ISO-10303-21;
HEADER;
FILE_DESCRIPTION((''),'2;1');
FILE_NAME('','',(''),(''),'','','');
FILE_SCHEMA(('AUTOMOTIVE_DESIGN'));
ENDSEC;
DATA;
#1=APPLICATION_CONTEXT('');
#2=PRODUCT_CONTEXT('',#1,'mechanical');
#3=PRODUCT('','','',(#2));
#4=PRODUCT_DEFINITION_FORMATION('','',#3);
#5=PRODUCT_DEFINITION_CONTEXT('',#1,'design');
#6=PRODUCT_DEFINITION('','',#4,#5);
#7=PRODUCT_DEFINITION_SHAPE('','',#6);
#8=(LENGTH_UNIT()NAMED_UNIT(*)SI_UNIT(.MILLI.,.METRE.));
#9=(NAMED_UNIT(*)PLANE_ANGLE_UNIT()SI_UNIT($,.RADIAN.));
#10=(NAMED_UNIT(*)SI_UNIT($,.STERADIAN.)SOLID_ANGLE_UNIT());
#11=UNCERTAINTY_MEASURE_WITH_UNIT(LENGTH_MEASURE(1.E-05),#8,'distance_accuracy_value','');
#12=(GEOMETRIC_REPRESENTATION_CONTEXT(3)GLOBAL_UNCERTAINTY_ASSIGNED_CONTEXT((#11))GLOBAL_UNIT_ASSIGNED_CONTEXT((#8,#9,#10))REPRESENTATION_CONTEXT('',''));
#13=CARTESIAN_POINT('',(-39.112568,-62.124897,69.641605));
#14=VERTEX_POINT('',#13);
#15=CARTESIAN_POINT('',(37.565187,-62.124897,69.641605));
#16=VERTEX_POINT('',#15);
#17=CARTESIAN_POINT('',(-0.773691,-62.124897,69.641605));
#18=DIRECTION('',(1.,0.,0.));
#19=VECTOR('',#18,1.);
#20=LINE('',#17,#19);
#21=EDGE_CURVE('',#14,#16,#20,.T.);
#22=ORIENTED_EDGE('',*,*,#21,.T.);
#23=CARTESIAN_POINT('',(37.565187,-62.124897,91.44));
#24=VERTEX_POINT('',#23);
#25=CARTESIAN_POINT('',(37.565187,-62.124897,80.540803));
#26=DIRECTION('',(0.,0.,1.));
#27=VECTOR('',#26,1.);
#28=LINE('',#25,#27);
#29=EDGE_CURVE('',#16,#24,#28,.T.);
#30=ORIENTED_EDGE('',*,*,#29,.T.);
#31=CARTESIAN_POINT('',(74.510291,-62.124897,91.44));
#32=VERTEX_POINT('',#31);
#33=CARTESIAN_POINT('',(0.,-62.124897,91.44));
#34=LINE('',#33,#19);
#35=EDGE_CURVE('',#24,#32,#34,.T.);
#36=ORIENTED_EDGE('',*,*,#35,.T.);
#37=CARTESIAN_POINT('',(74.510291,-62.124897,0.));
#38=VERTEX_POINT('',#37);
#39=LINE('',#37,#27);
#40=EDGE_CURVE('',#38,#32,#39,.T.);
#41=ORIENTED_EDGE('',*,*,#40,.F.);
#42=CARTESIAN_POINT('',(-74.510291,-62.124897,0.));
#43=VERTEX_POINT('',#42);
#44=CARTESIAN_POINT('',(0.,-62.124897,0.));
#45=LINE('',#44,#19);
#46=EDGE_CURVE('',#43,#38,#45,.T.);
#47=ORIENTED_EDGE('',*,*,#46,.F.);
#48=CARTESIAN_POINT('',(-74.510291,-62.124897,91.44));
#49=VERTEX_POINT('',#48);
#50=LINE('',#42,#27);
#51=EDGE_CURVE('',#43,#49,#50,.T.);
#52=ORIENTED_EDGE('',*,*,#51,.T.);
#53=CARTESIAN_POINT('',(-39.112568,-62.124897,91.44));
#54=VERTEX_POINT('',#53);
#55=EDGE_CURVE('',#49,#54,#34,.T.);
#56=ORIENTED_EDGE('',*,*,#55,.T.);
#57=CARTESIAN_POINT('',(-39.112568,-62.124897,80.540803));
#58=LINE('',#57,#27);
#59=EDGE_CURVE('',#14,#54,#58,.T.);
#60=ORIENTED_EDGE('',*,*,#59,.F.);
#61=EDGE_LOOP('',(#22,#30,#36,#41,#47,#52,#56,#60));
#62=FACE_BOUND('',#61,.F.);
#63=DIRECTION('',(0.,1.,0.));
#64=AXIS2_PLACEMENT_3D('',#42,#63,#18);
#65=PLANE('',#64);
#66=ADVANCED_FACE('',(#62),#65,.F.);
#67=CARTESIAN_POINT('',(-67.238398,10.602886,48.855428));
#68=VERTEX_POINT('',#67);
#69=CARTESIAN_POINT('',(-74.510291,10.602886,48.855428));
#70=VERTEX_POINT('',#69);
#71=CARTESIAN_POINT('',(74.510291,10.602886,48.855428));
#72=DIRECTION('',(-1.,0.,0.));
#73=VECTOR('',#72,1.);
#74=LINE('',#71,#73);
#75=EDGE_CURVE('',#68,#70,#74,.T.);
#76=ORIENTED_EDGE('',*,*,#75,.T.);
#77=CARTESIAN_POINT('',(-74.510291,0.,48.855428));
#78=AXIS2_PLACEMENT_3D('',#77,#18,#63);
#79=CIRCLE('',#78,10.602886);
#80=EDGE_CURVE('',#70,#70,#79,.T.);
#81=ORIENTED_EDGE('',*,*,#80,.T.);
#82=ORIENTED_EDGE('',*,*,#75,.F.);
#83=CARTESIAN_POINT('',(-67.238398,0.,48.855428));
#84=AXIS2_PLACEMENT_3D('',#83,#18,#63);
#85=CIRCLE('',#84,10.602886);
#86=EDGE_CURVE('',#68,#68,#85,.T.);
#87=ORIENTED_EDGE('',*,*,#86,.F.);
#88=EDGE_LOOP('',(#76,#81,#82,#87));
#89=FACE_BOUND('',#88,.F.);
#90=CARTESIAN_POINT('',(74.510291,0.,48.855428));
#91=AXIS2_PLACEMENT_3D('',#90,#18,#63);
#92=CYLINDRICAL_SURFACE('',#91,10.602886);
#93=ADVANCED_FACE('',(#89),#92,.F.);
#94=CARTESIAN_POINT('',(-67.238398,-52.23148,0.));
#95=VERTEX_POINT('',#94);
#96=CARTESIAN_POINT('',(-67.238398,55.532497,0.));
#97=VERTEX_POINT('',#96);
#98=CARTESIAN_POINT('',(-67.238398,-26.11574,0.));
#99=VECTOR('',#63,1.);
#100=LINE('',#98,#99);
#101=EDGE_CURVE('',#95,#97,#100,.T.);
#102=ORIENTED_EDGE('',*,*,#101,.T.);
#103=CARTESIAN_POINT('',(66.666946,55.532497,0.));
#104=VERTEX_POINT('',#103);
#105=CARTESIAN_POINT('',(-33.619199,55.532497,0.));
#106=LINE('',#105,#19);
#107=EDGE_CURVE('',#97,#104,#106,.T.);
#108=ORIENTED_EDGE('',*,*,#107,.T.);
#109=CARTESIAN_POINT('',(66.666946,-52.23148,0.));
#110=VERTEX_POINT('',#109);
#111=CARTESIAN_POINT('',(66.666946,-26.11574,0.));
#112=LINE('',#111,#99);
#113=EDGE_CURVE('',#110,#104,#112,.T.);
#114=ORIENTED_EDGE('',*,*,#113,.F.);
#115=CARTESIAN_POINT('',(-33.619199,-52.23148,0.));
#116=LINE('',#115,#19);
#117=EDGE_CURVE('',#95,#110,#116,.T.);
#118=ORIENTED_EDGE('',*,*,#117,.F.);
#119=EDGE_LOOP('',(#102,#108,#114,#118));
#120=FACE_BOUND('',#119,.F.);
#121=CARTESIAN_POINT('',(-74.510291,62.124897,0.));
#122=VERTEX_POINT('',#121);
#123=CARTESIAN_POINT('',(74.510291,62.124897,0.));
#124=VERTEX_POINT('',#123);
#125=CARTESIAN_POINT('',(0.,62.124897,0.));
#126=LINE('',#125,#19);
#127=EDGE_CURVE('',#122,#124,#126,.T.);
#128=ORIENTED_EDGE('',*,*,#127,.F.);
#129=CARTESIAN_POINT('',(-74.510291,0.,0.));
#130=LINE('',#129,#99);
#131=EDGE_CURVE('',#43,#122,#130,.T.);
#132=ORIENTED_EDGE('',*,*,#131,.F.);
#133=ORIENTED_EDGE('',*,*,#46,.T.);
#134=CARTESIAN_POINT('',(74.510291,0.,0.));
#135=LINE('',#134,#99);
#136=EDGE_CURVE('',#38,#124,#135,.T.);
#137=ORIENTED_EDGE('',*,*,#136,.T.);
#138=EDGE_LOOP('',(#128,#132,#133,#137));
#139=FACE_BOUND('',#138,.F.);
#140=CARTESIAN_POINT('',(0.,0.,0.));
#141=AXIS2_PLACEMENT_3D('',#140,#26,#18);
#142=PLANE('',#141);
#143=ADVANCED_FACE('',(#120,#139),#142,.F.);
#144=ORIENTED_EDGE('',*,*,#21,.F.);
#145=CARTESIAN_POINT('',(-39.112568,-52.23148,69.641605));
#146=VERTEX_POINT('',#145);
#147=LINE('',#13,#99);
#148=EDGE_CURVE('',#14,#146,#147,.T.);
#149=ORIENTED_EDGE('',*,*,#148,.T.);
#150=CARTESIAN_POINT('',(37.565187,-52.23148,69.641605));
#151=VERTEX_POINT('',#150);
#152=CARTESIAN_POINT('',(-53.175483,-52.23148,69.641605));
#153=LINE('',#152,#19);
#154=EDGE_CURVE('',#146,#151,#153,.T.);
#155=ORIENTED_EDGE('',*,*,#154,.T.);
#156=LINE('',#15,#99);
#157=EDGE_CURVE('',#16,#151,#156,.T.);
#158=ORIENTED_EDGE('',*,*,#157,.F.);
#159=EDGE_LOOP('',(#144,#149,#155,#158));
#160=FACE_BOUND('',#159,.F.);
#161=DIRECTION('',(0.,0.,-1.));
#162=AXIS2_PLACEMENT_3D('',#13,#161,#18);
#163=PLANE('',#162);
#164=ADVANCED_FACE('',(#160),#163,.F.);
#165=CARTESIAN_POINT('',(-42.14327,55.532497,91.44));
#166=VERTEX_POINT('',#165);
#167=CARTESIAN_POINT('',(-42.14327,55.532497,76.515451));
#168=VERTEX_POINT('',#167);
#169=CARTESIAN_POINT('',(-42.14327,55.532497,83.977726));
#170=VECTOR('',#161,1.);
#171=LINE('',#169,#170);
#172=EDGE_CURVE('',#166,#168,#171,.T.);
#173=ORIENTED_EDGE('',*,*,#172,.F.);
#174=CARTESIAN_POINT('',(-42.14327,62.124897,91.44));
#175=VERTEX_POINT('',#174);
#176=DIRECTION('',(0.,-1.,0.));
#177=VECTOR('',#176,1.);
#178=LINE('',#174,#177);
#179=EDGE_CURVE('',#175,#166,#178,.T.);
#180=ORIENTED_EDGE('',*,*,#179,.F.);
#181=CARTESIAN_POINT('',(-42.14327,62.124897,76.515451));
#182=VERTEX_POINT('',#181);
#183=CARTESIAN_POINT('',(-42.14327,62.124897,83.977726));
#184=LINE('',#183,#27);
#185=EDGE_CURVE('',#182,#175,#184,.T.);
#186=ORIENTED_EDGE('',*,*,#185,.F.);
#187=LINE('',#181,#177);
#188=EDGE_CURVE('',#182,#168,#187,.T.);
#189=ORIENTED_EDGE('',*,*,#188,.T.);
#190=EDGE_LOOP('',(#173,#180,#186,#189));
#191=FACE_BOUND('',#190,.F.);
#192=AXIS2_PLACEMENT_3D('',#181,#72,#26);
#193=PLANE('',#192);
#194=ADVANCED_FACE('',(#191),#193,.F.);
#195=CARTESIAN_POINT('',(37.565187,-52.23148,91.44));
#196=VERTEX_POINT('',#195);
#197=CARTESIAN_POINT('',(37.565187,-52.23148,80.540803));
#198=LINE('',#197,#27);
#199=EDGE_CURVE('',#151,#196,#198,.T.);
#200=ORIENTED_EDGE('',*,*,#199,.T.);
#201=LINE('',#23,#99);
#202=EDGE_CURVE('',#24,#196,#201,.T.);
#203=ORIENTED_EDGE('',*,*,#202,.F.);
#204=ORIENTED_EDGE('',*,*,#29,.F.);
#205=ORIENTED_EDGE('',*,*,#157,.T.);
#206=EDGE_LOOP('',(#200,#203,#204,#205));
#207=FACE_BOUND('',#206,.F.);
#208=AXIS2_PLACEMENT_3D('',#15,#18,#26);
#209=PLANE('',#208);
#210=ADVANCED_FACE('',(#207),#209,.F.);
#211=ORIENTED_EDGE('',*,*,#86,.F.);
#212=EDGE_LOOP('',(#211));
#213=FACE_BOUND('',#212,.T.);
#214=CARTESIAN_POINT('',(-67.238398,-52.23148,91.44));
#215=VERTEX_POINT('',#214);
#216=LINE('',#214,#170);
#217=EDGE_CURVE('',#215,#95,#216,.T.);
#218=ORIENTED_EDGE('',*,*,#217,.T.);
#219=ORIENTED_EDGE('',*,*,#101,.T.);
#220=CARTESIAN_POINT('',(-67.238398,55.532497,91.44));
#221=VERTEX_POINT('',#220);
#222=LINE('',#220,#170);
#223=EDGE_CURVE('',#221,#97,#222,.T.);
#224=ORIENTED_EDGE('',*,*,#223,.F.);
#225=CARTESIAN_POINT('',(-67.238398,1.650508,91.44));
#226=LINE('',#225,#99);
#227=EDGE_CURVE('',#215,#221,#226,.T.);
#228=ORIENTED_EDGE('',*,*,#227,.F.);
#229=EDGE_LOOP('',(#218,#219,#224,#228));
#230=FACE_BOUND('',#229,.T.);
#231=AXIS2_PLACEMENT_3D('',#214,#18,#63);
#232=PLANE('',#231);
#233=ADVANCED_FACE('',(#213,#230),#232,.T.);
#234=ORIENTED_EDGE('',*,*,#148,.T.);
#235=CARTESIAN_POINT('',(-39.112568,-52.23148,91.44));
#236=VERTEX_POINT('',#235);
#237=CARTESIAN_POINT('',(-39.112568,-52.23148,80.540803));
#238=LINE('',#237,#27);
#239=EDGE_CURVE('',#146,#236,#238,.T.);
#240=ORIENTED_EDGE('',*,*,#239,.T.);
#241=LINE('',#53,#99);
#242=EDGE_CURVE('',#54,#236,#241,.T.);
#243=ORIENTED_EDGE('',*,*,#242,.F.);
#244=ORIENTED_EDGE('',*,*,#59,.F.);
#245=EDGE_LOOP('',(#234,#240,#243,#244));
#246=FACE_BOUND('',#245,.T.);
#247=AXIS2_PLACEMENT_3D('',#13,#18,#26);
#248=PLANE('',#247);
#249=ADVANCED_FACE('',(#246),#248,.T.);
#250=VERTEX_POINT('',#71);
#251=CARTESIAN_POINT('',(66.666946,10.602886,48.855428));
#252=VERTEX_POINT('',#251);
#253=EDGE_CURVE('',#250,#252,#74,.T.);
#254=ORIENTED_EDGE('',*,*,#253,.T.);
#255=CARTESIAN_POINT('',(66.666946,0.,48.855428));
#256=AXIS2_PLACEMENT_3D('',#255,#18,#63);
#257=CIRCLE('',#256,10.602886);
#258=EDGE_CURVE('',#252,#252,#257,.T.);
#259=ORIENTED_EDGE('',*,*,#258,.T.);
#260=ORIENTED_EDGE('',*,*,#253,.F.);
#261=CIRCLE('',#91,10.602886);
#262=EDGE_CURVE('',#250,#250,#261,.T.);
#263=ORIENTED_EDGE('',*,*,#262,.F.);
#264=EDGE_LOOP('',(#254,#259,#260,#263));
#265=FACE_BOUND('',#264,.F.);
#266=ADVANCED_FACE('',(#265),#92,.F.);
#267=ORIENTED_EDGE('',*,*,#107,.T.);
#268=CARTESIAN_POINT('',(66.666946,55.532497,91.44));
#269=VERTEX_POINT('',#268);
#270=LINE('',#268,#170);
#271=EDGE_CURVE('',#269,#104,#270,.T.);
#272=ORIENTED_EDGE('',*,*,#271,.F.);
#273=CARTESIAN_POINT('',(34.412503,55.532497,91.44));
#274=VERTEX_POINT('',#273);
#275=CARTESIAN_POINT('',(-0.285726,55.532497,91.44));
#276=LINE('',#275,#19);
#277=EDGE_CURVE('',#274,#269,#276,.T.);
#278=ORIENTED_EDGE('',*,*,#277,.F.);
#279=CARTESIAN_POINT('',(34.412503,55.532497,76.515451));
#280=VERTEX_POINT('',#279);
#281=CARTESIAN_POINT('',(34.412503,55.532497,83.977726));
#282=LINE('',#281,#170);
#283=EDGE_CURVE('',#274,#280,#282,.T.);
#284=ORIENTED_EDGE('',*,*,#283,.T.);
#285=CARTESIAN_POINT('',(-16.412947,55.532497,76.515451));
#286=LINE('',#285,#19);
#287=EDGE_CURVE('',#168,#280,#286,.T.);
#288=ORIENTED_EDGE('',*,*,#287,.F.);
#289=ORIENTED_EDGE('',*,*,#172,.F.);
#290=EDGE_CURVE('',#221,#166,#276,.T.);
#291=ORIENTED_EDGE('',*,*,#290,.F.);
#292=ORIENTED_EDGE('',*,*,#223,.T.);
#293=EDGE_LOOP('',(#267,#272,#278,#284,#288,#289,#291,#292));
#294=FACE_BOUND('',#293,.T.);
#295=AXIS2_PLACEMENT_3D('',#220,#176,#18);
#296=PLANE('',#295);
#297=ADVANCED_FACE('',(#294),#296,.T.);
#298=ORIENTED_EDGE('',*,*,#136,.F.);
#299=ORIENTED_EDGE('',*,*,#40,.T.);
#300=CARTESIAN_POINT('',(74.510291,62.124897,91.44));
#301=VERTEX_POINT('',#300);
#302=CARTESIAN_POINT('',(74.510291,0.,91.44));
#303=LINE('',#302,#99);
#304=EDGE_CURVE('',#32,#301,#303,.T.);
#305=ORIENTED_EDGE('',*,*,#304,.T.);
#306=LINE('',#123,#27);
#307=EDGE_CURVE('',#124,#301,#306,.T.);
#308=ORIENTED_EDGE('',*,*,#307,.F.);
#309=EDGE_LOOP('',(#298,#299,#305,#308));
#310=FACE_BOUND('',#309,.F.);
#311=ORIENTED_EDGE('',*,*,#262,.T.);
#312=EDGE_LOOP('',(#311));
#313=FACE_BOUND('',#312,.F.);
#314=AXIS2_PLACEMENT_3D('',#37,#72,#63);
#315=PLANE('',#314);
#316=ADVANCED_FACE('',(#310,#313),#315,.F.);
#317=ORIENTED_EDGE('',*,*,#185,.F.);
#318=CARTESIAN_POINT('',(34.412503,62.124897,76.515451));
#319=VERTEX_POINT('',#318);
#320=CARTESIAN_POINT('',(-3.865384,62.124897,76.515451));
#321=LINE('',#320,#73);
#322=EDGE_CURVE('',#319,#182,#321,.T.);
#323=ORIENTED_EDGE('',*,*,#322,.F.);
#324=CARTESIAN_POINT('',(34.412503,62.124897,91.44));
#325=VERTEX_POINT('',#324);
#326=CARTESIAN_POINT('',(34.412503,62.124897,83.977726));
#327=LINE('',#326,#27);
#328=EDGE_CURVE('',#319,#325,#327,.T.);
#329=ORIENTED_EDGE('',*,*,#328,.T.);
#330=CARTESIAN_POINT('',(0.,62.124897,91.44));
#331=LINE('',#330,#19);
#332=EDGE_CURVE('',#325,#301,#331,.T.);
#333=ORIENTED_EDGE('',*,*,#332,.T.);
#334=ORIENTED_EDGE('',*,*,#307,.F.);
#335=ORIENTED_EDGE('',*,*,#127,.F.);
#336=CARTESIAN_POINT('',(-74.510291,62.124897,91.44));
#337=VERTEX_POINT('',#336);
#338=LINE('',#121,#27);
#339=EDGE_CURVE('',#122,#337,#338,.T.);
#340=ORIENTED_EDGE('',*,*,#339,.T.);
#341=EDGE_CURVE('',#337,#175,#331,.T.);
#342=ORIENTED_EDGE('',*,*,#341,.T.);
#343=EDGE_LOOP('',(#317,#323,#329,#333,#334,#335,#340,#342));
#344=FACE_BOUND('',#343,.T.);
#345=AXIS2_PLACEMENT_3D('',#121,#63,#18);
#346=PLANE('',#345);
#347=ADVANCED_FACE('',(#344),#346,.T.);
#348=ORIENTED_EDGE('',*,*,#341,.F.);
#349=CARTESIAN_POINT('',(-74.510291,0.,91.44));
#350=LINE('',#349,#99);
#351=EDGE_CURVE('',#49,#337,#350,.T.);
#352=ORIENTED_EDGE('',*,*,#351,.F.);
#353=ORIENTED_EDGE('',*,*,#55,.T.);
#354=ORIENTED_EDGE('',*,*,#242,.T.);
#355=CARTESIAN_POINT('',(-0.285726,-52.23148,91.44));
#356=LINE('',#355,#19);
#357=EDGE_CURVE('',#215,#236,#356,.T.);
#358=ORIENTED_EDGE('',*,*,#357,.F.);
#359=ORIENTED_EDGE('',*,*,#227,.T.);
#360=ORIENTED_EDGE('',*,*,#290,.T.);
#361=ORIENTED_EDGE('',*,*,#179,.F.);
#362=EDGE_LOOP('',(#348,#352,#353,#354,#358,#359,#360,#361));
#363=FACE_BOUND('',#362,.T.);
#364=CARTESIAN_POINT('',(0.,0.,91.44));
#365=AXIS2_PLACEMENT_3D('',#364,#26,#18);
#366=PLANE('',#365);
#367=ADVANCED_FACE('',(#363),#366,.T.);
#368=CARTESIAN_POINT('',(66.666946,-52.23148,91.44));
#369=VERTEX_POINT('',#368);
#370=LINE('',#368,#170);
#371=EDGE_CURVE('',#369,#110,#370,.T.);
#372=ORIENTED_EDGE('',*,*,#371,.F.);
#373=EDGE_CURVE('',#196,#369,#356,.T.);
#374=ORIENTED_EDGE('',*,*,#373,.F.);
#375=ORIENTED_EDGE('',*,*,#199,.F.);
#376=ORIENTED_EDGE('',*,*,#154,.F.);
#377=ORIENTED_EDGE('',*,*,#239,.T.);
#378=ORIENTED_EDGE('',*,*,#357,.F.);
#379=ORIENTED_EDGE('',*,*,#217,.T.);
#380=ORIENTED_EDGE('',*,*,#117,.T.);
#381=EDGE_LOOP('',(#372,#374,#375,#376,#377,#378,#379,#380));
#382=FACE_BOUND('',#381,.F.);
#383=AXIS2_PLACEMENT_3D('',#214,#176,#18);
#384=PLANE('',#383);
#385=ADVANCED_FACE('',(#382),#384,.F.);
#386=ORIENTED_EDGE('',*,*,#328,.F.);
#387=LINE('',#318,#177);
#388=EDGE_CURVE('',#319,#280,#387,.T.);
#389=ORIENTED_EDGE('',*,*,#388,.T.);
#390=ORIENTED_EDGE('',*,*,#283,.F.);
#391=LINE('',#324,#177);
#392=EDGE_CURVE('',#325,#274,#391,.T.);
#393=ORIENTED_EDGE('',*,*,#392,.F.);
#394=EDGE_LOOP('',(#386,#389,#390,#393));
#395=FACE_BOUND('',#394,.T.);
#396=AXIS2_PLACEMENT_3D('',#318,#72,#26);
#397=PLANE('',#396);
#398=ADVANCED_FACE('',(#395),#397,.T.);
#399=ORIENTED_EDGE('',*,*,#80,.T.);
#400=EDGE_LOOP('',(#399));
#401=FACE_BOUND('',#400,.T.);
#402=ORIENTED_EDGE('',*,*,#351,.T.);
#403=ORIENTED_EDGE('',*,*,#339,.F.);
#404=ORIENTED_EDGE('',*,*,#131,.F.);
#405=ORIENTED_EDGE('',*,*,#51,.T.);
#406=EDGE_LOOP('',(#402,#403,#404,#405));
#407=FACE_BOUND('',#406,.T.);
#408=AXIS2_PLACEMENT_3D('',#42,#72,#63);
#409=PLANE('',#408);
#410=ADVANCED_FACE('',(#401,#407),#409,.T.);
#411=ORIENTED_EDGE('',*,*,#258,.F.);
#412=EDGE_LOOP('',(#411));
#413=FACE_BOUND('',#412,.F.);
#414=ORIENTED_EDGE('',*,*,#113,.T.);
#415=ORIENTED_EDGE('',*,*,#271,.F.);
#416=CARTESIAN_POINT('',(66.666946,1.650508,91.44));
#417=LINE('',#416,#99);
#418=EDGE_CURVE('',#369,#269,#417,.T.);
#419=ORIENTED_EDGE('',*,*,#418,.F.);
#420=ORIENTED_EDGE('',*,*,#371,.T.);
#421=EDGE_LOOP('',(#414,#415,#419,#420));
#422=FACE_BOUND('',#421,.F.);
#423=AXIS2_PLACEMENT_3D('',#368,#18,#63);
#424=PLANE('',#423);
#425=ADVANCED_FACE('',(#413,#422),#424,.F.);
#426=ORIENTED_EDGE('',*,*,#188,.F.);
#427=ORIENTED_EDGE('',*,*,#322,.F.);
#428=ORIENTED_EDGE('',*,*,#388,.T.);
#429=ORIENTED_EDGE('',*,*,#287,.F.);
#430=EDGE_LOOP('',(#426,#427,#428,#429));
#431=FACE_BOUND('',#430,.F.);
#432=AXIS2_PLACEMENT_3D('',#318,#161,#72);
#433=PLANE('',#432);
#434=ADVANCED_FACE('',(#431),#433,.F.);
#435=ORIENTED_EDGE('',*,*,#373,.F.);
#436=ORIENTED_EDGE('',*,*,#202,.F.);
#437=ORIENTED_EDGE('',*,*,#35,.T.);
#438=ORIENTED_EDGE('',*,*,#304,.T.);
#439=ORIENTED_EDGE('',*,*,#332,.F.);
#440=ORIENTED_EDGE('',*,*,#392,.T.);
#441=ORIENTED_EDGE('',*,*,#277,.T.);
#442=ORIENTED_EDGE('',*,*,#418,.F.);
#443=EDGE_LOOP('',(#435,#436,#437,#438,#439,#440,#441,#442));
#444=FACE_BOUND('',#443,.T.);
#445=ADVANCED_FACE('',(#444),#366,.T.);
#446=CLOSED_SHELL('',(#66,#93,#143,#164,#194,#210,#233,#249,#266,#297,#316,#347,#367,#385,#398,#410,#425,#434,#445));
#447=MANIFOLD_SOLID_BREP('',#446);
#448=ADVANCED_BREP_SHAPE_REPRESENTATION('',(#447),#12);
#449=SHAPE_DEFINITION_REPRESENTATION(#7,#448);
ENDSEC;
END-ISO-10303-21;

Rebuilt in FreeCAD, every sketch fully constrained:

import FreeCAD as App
import Part
import Sketcher
from FreeCAD import Vector
Q = App.Units.Quantity


def add_polygon(sketch, points):
    """Adds a closed chain of lines whose ends are joined by coincident constraints."""
    first, n = sketch.GeometryCount, len(points)
    for a, b in zip(points, points[1:] + points[:1]):
        sketch.addGeometry(Part.LineSegment(App.Vector(*a, 0), App.Vector(*b, 0)), False)
    for i in range(n):
        sketch.addConstraint(Sketcher.Constraint("Coincident", first + i, 2, first + (i + 1) % n, 1))

doc = App.newDocument("Part")
body = doc.addObject("PartDesign::Body", "Body")

# Sketch on XY plane
sketch1 = body.newObject("Sketcher::SketchObject", "Sketch")
sketch1.AttachmentSupport = (doc.getObject("XY_Plane"), [""])
sketch1.MapMode = "FlatFace"
add_polygon(sketch1, [(-75, 62), (-75, -62), (75, -62), (75, 62)])  # lines 0-3
sketch1.addConstraint(Sketcher.Constraint("Vertical", 0))
sketch1.addConstraint(Sketcher.Constraint("Horizontal", 1))
sketch1.addConstraint(Sketcher.Constraint("Vertical", 2))
sketch1.addConstraint(Sketcher.Constraint("Horizontal", 3))
sketch1.addConstraint(Sketcher.Constraint("Symmetric", 0, 2, 2, 2, -1, 1))
sketch1.addConstraint(Sketcher.Constraint("DistanceX", 1, 1, 1, 2, 149.020582))
sketch1.addConstraint(Sketcher.Constraint("DistanceY", 0, 2, 0, 1, 124.249794))
pad1 = body.newObject("PartDesign::Pad", "Pad")
pad1.Profile = sketch1
pad1.Length = Q("3.6 in")

# Sketch on XY plane
sketch2 = body.newObject("Sketcher::SketchObject", "Sketch001")
sketch2.AttachmentSupport = (doc.getObject("XY_Plane"), [""])
sketch2.MapMode = "FlatFace"
sketch2.AttachmentOffset = App.Placement(Vector(0, 0, 3.6 * 25.4), App.Rotation())
add_polygon(sketch2, [(-67, 56), (-67, -52), (67, -52), (67, 56)])  # lines 0-3
sketch2.addConstraint(Sketcher.Constraint("Vertical", 0))
sketch2.addConstraint(Sketcher.Constraint("Horizontal", 1))
sketch2.addConstraint(Sketcher.Constraint("Vertical", 2))
sketch2.addConstraint(Sketcher.Constraint("Horizontal", 3))
sketch2.addConstraint(Sketcher.Constraint("DistanceX", 1, 1, 1, 2, 133.905344))
sketch2.addConstraint(Sketcher.Constraint("DistanceY", 0, 2, 0, 1, 107.763977))
sketch2.addConstraint(Sketcher.Constraint("DistanceY", 0, 2, -1, 1, 52.23148))
sketch2.addConstraint(Sketcher.Constraint("DistanceX", 0, 2, -1, 1, 67.238398))
pocket1 = body.newObject("PartDesign::Pocket", "Pocket")
pocket1.Profile = sketch2
pocket1.Type = "ThroughAll"

# Sketch on XZ plane
sketch3 = body.newObject("Sketcher::SketchObject", "Sketch002")
sketch3.AttachmentSupport = (doc.getObject("XZ_Plane"), [""])
sketch3.MapMode = "FlatFace"
sketch3.AttachmentOffset = App.Placement(Vector(0, 0, 62.124897), App.Rotation())
add_polygon(sketch3, [(-39, 91), (-39, 70), (38, 70), (38, 91)])  # lines 0-3
sketch3.addConstraint(Sketcher.Constraint("Vertical", 0))
sketch3.addConstraint(Sketcher.Constraint("Horizontal", 1))
sketch3.addConstraint(Sketcher.Constraint("Vertical", 2))
sketch3.addConstraint(Sketcher.Constraint("Horizontal", 3))
sketch3.addConstraint(Sketcher.Constraint("DistanceY", -1, 1, 2, 2, Q("3.6 in")))
sketch3.addConstraint(Sketcher.Constraint("DistanceX", 1, 1, 1, 2, 76.677755))
sketch3.addConstraint(Sketcher.Constraint("DistanceY", 0, 2, 0, 1, 21.798395))
sketch3.addConstraint(Sketcher.Constraint("DistanceX", 0, 2, -1, 1, 39.112568))
pocket2 = body.newObject("PartDesign::Pocket", "Pocket001")
pocket2.Profile = sketch3
pocket2.Length = Q("1 in")

# Sketch on XZ plane
sketch4 = body.newObject("Sketcher::SketchObject", "Sketch003")
sketch4.AttachmentSupport = (doc.getObject("XZ_Plane"), [""])
sketch4.MapMode = "FlatFace"
sketch4.AttachmentOffset = App.Placement(Vector(0, 0, -62.124897), App.Rotation())
add_polygon(sketch4, [(34, 91), (34, 77), (-42, 77), (-42, 91)])  # lines 0-3
sketch4.addConstraint(Sketcher.Constraint("Vertical", 0))
sketch4.addConstraint(Sketcher.Constraint("Horizontal", 1))
sketch4.addConstraint(Sketcher.Constraint("Vertical", 2))
sketch4.addConstraint(Sketcher.Constraint("Horizontal", 3))
sketch4.addConstraint(Sketcher.Constraint("DistanceY", -1, 1, 2, 2, Q("3.6 in")))
sketch4.addConstraint(Sketcher.Constraint("DistanceY", 0, 2, 0, 1, 14.924549))
sketch4.addConstraint(Sketcher.Constraint("DistanceX", 1, 2, 1, 1, 76.555774))
sketch4.addConstraint(Sketcher.Constraint("DistanceX", 1, 2, -1, 1, 42.14327))
pocket3 = body.newObject("PartDesign::Pocket", "Pocket002")
pocket3.Profile = sketch4
pocket3.Length = Q("1 in")
pocket3.Reversed = True

# Sketch on YZ plane
sketch5 = body.newObject("Sketcher::SketchObject", "Sketch004")
sketch5.AttachmentSupport = (doc.getObject("YZ_Plane"), [""])
sketch5.MapMode = "FlatFace"
sketch5.AttachmentOffset = App.Placement(Vector(0, 0, 74.510291), App.Rotation())
sketch5.addGeometry(Part.Circle(Vector(0, 49, 0), Vector(0, 0, 1), 11), False)
sketch5.addConstraint(Sketcher.Constraint("PointOnObject", 0, 3, -2))
sketch5.addConstraint(Sketcher.Constraint("Diameter", 0, 21.205771))
sketch5.addConstraint(Sketcher.Constraint("DistanceY", -1, 1, 0, 3, 48.855428))
pocket4 = body.newObject("PartDesign::Pocket", "Pocket003")
pocket4.Profile = sketch5
pocket4.Type = "ThroughAll"

doc.recompute()
